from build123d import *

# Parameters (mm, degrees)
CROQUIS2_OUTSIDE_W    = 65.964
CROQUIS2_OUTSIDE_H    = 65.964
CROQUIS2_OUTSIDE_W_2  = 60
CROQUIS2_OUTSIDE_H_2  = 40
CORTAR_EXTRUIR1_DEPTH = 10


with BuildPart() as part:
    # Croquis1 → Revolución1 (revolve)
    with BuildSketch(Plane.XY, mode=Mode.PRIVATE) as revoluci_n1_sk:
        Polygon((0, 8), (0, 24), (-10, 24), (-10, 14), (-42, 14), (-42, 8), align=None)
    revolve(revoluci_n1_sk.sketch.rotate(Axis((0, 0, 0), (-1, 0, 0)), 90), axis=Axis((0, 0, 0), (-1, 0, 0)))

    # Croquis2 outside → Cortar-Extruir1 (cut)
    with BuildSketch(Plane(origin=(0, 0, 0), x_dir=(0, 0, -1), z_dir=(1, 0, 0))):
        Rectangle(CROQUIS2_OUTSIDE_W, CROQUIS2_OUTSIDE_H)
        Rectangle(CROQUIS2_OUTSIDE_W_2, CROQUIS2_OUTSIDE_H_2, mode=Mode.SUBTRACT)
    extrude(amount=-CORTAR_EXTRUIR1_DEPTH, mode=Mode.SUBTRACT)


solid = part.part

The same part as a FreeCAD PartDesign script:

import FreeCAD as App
import Part
import Sketcher
Q = App.Units.Quantity

doc = App.newDocument("Part")
params = doc.addObject("Spreadsheet::Sheet", "Params")
for row, (alias, value) in enumerate([
    ("sketch1_width", "10 mm"),
    ("sketch1_width2", "32 mm"),
    ("sketch1_height", "16 mm"),
    ("revolution_angle", "360 deg"),
    ("sketch2_width", "40 mm"),
    ("sketch2_height", "60 mm"),
    ("pocket1_length", "10 mm"),
], start=1):
    params.set(f"A{row}", alias)
    params.set(f"B{row}", "=" + value)
    params.setAlias(f"B{row}", alias)

body = doc.addObject("PartDesign::Body", "Body")

# Sketch on XY plane
sketch1 = doc.addObject("Sketcher::SketchObject", "Sketch")
body.addObject(sketch1)
sketch1.AttachmentSupport = (doc.XY_Plane, [""])
sketch1.MapMode = "FlatFace"
sketch1.addGeometry([
    Part.LineSegment(App.Vector(0, 8, 0), App.Vector(0, 24, 0)),  # 0
    Part.LineSegment(App.Vector(0, 24, 0), App.Vector(-10, 24, 0)),  # 1
    Part.LineSegment(App.Vector(-10, 24, 0), App.Vector(-10, 14, 0)),  # 2
    Part.LineSegment(App.Vector(-10, 14, 0), App.Vector(-42, 14, 0)),  # 3
    Part.LineSegment(App.Vector(-42, 14, 0), App.Vector(-42, 8, 0)),  # 4
    Part.LineSegment(App.Vector(-42, 8, 0), App.Vector(0, 8, 0)),  # 5
], False)
sketch1.addConstraint([
    Sketcher.Constraint("Coincident", 0, 2, 1, 1),
    Sketcher.Constraint("Coincident", 1, 2, 2, 1),
    Sketcher.Constraint("Coincident", 2, 2, 3, 1),
    Sketcher.Constraint("Coincident", 3, 2, 4, 1),
    Sketcher.Constraint("Coincident", 4, 2, 5, 1),
    Sketcher.Constraint("Coincident", 5, 2, 0, 1),
    Sketcher.Constraint("Vertical", 0),
    Sketcher.Constraint("Horizontal", 1),
    Sketcher.Constraint("Vertical", 2),
    Sketcher.Constraint("Horizontal", 3),
    Sketcher.Constraint("Vertical", 4),
    Sketcher.Constraint("Horizontal", 5),
    Sketcher.Constraint("PointOnObject", 0, 2, -2),
    Sketcher.Constraint("Equal", 1, 2),
    Sketcher.Constraint("DistanceX", 1, 2, 1, 1, Q("10 mm")),
    Sketcher.Constraint("DistanceX", 3, 2, 3, 1, Q("32 mm")),
    Sketcher.Constraint("DistanceY", 0, 1, 0, 2, Q("16 mm")),
    Sketcher.Constraint("DistanceY", -1, 1, 0, 2, Q("24 mm")),
])
sketch1.setExpression("Constraints[14]", "Params.sketch1_width")
sketch1.setExpression("Constraints[15]", "Params.sketch1_width2")
sketch1.setExpression("Constraints[16]", "Params.sketch1_height")
revolution = doc.addObject("PartDesign::Revolution", "Revolution")
body.addObject(revolution)
revolution.Profile = sketch1
revolution.ReferenceAxis = (sketch1, ["H_Axis"])
revolution.setExpression("Angle", "Params.revolution_angle")

# Sketch on YZ plane
sketch2 = doc.addObject("Sketcher::SketchObject", "Sketch001")
body.addObject(sketch2)
sketch2.AttachmentSupport = (doc.YZ_Plane, [""])
sketch2.MapMode = "FlatFace"
sketch2.addGeometry([
    Part.LineSegment(App.Vector(32.982, 32.982, 0), App.Vector(-32.982, 32.982, 0)),  # 0
    Part.LineSegment(App.Vector(-32.982, 32.982, 0), App.Vector(-32.982, -32.982, 0)),  # 1
    Part.LineSegment(App.Vector(-32.982, -32.982, 0), App.Vector(32.982, -32.982, 0)),  # 2
    Part.LineSegment(App.Vector(32.982, -32.982, 0), App.Vector(32.982, 32.982, 0)),  # 3
    Part.LineSegment(App.Vector(-20, -30, 0), App.Vector(-20, 30, 0)),  # 4
    Part.LineSegment(App.Vector(-20, 30, 0), App.Vector(20, 30, 0)),  # 5
    Part.LineSegment(App.Vector(20, 30, 0), App.Vector(20, -30, 0)),  # 6
    Part.LineSegment(App.Vector(20, -30, 0), App.Vector(-20, -30, 0)),  # 7
], False)
sketch2.addConstraint([
    Sketcher.Constraint("Coincident", 0, 2, 1, 1),
    Sketcher.Constraint("Coincident", 1, 2, 2, 1),
    Sketcher.Constraint("Coincident", 2, 2, 3, 1),
    Sketcher.Constraint("Coincident", 3, 2, 0, 1),
    Sketcher.Constraint("Coincident", 4, 2, 5, 1),
    Sketcher.Constraint("Coincident", 5, 2, 6, 1),
    Sketcher.Constraint("Coincident", 6, 2, 7, 1),
    Sketcher.Constraint("Coincident", 7, 2, 4, 1),
    Sketcher.Constraint("Horizontal", 0),
    Sketcher.Constraint("Vertical", 1),
    Sketcher.Constraint("Horizontal", 2),
    Sketcher.Constraint("Vertical", 3),
    Sketcher.Constraint("Vertical", 4),
    Sketcher.Constraint("Horizontal", 5),
    Sketcher.Constraint("Vertical", 6),
    Sketcher.Constraint("Horizontal", 7),
    Sketcher.Constraint("Symmetric", 0, 2, 2, 2, -1, 1),
    Sketcher.Constraint("Symmetric", 4, 2, 6, 2, -1, 1),
    Sketcher.Constraint("Equal", 2, 1),
    Sketcher.Constraint("DistanceX", 5, 1, 5, 2, Q("40 mm")),
    Sketcher.Constraint("DistanceY", 4, 1, 4, 2, Q("60 mm")),
    Sketcher.Constraint("DistanceX", 0, 2, 0, 1, Q("65.964 mm")),
])
sketch2.setExpression("Constraints[19]", "Params.sketch2_width")
sketch2.setExpression("Constraints[20]", "Params.sketch2_height")
pocket1 = doc.addObject("PartDesign::Pocket", "Pocket")
body.addObject(pocket1)
pocket1.Profile = sketch2
pocket1.setExpression("Length", "Params.pocket1_length")

doc.recompute()
